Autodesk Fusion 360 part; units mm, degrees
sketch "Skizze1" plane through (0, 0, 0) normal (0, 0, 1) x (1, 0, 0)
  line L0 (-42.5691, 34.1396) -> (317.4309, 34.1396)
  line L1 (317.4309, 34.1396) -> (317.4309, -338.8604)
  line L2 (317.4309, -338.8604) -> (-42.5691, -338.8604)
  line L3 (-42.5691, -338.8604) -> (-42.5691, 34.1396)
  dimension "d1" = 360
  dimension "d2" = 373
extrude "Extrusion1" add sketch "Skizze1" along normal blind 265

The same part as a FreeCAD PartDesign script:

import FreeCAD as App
import Part
import Sketcher
Q = App.Units.Quantity

doc = App.newDocument("Part")
body = doc.addObject("PartDesign::Body", "Body")

sketch1 = body.newObject("Sketcher::SketchObject", "Sketch")
sketch1.AttachmentSupport = (doc.getObject("XY_Plane"), [""])
sketch1.MapMode = "FlatFace"
sketch1.addGeometry(Part.LineSegment(App.Vector(317, 34, 0), App.Vector(-43, 34, 0)), False)
sketch1.addGeometry(Part.LineSegment(App.Vector(-43, 34, 0), App.Vector(-43, -339, 0)), False)
sketch1.addGeometry(Part.LineSegment(App.Vector(-43, -339, 0), App.Vector(317, -339, 0)), False)
sketch1.addGeometry(Part.LineSegment(App.Vector(317, -339, 0), App.Vector(317, 34, 0)), False)
sketch1.addConstraint(Sketcher.Constraint("Coincident", 0, 2, 1, 1))
sketch1.addConstraint(Sketcher.Constraint("Coincident", 1, 2, 2, 1))
sketch1.addConstraint(Sketcher.Constraint("Coincident", 2, 2, 3, 1))
sketch1.addConstraint(Sketcher.Constraint("Coincident", 3, 2, 0, 1))
sketch1.addConstraint(Sketcher.Constraint("Horizontal", 0))
sketch1.addConstraint(Sketcher.Constraint("Vertical", 1))
sketch1.addConstraint(Sketcher.Constraint("Horizontal", 2))
sketch1.addConstraint(Sketcher.Constraint("Vertical", 3))
sketch1.addConstraint(Sketcher.Constraint("DistanceX", 0, 2, 0, 1, Q("360 mm")))
sketch1.addConstraint(Sketcher.Constraint("DistanceY", 1, 2, 1, 1, Q("373 mm")))
sketch1.addConstraint(Sketcher.Constraint("DistanceX", 0, 2, -1, 1, Q("42.569 mm")))
sketch1.addConstraint(Sketcher.Constraint("DistanceY", -1, 1, 0, 2, Q("34.1396 mm")))
pad1 = body.newObject("PartDesign::Pad", "Pad")
pad1.Profile = sketch1
pad1.Length = 265

doc.recompute()
